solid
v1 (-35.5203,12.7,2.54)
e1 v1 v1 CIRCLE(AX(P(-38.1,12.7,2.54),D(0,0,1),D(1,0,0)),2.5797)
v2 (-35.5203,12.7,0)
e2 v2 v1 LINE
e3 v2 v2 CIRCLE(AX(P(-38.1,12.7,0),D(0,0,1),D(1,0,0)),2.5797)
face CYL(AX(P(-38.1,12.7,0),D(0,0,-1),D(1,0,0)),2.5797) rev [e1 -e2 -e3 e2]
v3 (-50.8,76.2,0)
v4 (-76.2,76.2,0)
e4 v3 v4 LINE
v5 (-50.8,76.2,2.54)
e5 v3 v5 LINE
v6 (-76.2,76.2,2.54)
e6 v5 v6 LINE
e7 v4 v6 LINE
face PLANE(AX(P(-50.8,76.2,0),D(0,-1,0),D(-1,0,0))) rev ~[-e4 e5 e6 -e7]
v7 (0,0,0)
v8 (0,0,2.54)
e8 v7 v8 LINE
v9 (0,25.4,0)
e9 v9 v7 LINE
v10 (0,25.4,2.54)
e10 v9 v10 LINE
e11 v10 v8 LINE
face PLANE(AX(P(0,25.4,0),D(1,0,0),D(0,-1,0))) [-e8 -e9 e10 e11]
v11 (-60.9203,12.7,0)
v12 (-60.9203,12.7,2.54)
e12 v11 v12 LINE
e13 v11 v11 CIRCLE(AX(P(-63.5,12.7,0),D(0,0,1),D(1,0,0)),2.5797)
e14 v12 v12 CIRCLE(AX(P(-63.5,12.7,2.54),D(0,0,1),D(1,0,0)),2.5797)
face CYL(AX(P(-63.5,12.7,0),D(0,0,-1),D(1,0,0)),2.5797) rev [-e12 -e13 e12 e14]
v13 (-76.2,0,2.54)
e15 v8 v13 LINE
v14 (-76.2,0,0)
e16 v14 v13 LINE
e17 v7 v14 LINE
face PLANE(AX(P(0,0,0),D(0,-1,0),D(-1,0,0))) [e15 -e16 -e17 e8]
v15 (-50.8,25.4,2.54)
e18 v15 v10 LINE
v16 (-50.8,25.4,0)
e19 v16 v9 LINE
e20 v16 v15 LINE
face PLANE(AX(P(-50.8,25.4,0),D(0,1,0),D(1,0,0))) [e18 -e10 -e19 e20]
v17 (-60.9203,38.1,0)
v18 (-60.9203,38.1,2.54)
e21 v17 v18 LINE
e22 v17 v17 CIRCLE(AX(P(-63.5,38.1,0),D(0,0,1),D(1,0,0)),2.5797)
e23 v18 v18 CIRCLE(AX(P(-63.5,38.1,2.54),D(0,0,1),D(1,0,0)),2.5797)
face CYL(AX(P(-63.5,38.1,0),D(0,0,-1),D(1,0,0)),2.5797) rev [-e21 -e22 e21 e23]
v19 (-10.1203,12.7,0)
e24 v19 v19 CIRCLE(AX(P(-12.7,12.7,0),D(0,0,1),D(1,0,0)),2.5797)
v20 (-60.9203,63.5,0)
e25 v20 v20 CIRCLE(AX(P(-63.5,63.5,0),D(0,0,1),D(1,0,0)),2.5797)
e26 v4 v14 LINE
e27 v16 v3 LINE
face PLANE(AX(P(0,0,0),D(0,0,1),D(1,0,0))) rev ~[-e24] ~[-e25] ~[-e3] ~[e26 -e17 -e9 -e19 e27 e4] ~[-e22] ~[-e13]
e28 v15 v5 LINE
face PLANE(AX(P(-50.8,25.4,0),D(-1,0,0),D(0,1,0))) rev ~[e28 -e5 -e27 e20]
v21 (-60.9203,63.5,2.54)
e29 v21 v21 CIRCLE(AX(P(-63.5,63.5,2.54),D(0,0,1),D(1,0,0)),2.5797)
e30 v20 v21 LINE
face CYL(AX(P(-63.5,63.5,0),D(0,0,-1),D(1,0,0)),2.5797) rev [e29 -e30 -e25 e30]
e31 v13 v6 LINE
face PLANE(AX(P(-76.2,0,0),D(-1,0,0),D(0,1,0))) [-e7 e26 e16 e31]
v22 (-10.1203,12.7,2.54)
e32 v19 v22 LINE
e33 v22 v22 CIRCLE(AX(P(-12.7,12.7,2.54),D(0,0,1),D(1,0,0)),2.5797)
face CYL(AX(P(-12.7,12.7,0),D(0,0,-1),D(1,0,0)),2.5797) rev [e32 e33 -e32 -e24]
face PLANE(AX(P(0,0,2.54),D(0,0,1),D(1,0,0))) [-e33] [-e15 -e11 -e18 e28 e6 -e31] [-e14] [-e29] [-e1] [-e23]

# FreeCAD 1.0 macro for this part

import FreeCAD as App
import Part
import Sketcher

V = App.Vector
Q = App.Units.Quantity

doc = App.newDocument("Part")
body = doc.addObject("PartDesign::Body", "Body")

sketch1 = body.newObject("Sketcher::SketchObject", "Sketch")
sketch1.AttachmentSupport = (doc.getObject("XY_Plane"), [""])
sketch1.MapMode = "FlatFace"
sketch1.addGeometry([
    Part.LineSegment(V(-76.2, 0, 0), V(0, 0, 0)),
    Part.LineSegment(V(0, 0, 0), V(0, 25.4, 0)),
    Part.LineSegment(V(0, 25.4, 0), V(-50.8, 25.4, 0)),
    Part.LineSegment(V(-50.8, 25.4, 0), V(-50.8, 76.2, 0)),
    Part.LineSegment(V(-50.8, 76.2, 0), V(-76.2, 76.2, 0)),
    Part.LineSegment(V(-76.2, 76.2, 0), V(-76.2, 0, 0)),
    Part.Circle(V(-63.5, 12.7, 0), V(0, 0, 1), 2.6),
    Part.Circle(V(-38.1, 12.7, 0), V(0, 0, 1), 2.6),
    Part.Circle(V(-12.7, 12.7, 0), V(0, 0, 1), 2.6),
    Part.Circle(V(-63.5, 63.5, 0), V(0, 0, 1), 2.6),
    Part.Circle(V(-63.5, 38.1, 0), V(0, 0, 1), 2.6),
], False)
sketch1.addConstraint([
    Sketcher.Constraint("Coincident", 0, 2, 1, 1),
    Sketcher.Constraint("Coincident", 1, 2, 2, 1),
    Sketcher.Constraint("Coincident", 2, 2, 3, 1),
    Sketcher.Constraint("Coincident", 3, 2, 4, 1),
    Sketcher.Constraint("Coincident", 4, 2, 5, 1),
    Sketcher.Constraint("Coincident", 5, 2, 0, 1),
    Sketcher.Constraint("Horizontal", 0),
    Sketcher.Constraint("Vertical", 1),
    Sketcher.Constraint("Horizontal", 2),
    Sketcher.Constraint("Vertical", 3),
    Sketcher.Constraint("Horizontal", 4),
    Sketcher.Constraint("Vertical", 5),
    Sketcher.Constraint("Coincident", 0, 2, -1, 1),
    Sketcher.Constraint("Equal", 6, 7),
    Sketcher.Constraint("Equal", 7, 8),
    Sketcher.Constraint("Equal", 8, 9),
    Sketcher.Constraint("Equal", 9, 10),
    Sketcher.Constraint("Horizontal", 6, 3, 7, 3),
    Sketcher.Constraint("Horizontal", 7, 3, 8, 3),
    Sketcher.Constraint("Vertical", 6, 3, 9, 3),
    Sketcher.Constraint("Vertical", 9, 3, 10, 3),
    Sketcher.Constraint("Equal", 4, 1),
    Sketcher.Constraint("Equal", 2, 3),
    Sketcher.Constraint("DistanceX", 0, 1, 0, 2, Q("3 in")),
    Sketcher.Constraint("DistanceX", 2, 2, 2, 1, Q("2 in")),
    Sketcher.Constraint("Diameter", 6, Q("0.203126 in")),
    Sketcher.Constraint("DistanceX", 6, 3, 7, 3, Q("1 in")),
    Sketcher.Constraint("DistanceX", 7, 3, 8, 3, Q("1 in")),
    Sketcher.Constraint("DistanceY", 6, 3, 9, 3, Q("2 in")),
    Sketcher.Constraint("DistanceY", 10, 3, 9, 3, Q("1 in")),
    Sketcher.Constraint("DistanceY", -1, 1, 6, 3, Q("0.5 in")),
    Sketcher.Constraint("DistanceX", 8, 3, -1, 1, Q("0.5 in")),
])
pad1 = body.newObject("PartDesign::Pad", "Pad")
pad1.Profile = sketch1
pad1.Length = Q("0.1 in")

doc.recompute()
